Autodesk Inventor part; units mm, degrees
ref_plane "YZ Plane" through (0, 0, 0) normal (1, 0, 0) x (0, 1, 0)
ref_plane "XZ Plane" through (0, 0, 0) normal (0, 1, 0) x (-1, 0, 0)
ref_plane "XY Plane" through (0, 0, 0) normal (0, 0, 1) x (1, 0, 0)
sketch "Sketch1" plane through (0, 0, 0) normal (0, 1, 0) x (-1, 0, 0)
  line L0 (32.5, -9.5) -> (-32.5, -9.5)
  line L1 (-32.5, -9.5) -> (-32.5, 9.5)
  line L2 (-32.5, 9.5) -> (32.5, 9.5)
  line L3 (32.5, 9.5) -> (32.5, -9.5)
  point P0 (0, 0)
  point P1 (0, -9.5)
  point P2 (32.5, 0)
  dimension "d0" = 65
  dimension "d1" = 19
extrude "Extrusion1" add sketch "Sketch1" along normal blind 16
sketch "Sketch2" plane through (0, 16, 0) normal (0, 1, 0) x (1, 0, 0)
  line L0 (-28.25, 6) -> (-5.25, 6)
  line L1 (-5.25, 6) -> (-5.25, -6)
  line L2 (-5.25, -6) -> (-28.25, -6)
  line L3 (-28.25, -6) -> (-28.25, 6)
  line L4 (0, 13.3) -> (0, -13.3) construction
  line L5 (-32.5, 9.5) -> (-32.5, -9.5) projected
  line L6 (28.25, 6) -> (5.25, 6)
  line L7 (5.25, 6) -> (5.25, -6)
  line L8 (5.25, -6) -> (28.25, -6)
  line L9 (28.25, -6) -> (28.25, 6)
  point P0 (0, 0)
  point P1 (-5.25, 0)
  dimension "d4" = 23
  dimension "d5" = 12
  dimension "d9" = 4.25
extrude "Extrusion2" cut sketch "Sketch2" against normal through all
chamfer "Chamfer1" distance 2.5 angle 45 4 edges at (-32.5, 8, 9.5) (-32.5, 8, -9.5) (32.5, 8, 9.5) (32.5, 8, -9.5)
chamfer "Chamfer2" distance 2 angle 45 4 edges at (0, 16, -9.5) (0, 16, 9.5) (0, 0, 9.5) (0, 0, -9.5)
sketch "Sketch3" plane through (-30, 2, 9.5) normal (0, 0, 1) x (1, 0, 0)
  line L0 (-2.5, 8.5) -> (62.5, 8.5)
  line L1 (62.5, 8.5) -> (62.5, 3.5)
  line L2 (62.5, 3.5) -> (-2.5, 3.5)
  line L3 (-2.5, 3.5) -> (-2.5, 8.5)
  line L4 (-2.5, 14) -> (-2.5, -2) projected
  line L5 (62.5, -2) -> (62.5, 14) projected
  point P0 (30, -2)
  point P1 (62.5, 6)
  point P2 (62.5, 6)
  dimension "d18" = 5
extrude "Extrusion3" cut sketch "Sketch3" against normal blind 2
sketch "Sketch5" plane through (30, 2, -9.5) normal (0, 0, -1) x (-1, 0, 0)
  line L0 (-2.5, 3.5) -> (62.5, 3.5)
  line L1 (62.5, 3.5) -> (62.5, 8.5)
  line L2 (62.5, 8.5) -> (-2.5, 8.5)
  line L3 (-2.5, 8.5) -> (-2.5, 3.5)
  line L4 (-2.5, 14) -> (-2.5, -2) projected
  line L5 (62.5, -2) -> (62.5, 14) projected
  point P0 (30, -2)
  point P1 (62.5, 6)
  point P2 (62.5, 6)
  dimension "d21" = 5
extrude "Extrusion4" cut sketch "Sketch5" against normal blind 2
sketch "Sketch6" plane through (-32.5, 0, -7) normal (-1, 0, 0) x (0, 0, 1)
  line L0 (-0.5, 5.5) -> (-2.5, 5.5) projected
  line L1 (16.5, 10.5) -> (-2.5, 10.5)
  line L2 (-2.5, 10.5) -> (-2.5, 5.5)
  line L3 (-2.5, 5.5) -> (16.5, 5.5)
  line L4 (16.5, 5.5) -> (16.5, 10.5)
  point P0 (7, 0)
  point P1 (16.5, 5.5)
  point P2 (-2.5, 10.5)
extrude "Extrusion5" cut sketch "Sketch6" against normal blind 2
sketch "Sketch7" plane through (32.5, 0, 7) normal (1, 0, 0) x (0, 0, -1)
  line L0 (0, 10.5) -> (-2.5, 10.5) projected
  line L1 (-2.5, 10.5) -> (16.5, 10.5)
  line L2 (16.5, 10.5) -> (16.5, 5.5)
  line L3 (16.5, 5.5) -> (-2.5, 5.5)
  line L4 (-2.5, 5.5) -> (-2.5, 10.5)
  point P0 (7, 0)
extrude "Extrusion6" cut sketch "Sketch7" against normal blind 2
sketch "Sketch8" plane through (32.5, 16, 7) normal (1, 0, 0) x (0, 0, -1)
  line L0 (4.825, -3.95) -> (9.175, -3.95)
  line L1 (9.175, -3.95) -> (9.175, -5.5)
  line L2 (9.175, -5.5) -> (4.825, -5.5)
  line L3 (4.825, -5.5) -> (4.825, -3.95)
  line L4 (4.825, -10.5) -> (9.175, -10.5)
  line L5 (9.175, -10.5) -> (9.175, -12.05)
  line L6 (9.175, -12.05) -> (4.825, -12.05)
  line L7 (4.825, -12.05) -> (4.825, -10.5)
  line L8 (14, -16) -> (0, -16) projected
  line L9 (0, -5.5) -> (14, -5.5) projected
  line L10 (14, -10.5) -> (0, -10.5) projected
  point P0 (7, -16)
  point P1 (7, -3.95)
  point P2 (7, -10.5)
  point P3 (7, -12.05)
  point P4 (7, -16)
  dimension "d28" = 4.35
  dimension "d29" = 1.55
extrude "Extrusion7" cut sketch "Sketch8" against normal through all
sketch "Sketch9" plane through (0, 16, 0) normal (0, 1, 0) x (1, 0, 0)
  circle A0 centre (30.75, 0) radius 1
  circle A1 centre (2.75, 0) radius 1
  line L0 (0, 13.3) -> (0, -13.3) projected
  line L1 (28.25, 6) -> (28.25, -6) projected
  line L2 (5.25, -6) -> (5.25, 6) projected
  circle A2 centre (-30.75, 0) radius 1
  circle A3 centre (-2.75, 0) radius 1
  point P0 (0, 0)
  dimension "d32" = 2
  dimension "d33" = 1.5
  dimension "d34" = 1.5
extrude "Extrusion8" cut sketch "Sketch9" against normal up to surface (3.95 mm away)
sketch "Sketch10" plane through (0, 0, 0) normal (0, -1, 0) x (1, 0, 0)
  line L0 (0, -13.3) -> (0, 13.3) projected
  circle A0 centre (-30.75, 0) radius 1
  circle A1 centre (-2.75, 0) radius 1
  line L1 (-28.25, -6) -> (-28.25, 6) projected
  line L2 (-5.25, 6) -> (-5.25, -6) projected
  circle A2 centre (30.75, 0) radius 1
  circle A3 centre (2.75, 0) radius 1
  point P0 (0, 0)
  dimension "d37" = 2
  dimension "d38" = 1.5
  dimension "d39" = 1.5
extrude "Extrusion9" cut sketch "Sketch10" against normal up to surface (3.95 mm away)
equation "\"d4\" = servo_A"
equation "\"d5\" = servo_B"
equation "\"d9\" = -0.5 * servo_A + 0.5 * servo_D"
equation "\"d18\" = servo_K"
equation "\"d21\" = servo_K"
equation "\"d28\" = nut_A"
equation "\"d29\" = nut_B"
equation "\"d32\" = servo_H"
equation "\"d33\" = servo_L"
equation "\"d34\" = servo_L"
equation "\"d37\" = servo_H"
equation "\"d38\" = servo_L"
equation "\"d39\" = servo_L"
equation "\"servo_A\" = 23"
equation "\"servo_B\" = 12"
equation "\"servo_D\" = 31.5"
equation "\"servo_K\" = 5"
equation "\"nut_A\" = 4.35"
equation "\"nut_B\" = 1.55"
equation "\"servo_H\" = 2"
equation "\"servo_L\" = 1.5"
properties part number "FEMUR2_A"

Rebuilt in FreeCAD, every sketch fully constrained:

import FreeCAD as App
import Part
import Sketcher

V = App.Vector


def edges_at(feature, points):
    """Names of the edges that pass closest to the given points."""
    edges = feature.Shape.Edges
    near = lambda p: min(range(len(edges)), key=lambda i: edges[i].distToShape(Part.Vertex(*p))[0])
    return sorted({f"Edge{near(p) + 1}" for p in points})

doc = App.newDocument("Part")
body = doc.addObject("PartDesign::Body", "Body")

# Sketch on XZ plane
sketch1 = body.newObject("Sketcher::SketchObject", "Sketch")
sketch1.AttachmentSupport = (doc.getObject("XZ_Plane"), [""])
sketch1.MapMode = "FlatFace"
sketch1.addGeometry([
    Part.LineSegment(V(32, -10, 0), V(-32, -10, 0)),
    Part.LineSegment(V(-32, -10, 0), V(-32, 10, 0)),
    Part.LineSegment(V(-32, 10, 0), V(32, 10, 0)),
    Part.LineSegment(V(32, 10, 0), V(32, -10, 0)),
], False)
sketch1.addConstraint([
    Sketcher.Constraint("Coincident", 0, 2, 1, 1),
    Sketcher.Constraint("Coincident", 1, 2, 2, 1),
    Sketcher.Constraint("Coincident", 2, 2, 3, 1),
    Sketcher.Constraint("Coincident", 3, 2, 0, 1),
    Sketcher.Constraint("Horizontal", 0),
    Sketcher.Constraint("Vertical", 1),
    Sketcher.Constraint("Horizontal", 2),
    Sketcher.Constraint("Vertical", 3),
    Sketcher.Constraint("Symmetric", 0, 2, 2, 2, -1, 1),
    Sketcher.Constraint("DistanceX", 0, 2, 0, 1, 65.0),
    Sketcher.Constraint("DistanceY", 1, 1, 1, 2, 19.0),
])
pad1 = body.newObject("PartDesign::Pad", "Pad")
pad1.Profile = sketch1
pad1.Length = 16
pad1.Reversed = True

# Sketch on XZ plane
sketch2 = body.newObject("Sketcher::SketchObject", "Sketch001")
sketch2.AttachmentSupport = (doc.getObject("XZ_Plane"), [""])
sketch2.MapMode = "FlatFace"
sketch2.AttachmentOffset = App.Placement(V(0, 0, -16), App.Rotation())
sketch2.addGeometry([
    Part.LineSegment(V(-5, -6, 0), V(-28, -6, 0)),  # 0
    Part.LineSegment(V(-28, -6, 0), V(-28, 6, 0)),  # 1
    Part.LineSegment(V(-28, 6, 0), V(-5, 6, 0)),  # 2
    Part.LineSegment(V(-5, 6, 0), V(-5, -6, 0)),  # 3
    Part.LineSegment(V(28, 6, 0), V(28, -6, 0)),  # 4
    Part.LineSegment(V(28, -6, 0), V(5, -6, 0)),  # 5
    Part.LineSegment(V(5, -6, 0), V(5, 6, 0)),  # 6
    Part.LineSegment(V(5, 6, 0), V(28, 6, 0)),  # 7
], False)
sketch2.addConstraint([
    Sketcher.Constraint("Coincident", 0, 2, 1, 1),
    Sketcher.Constraint("Coincident", 1, 2, 2, 1),
    Sketcher.Constraint("Coincident", 2, 2, 3, 1),
    Sketcher.Constraint("Coincident", 3, 2, 0, 1),
    Sketcher.Constraint("Coincident", 4, 2, 5, 1),
    Sketcher.Constraint("Coincident", 5, 2, 6, 1),
    Sketcher.Constraint("Coincident", 6, 2, 7, 1),
    Sketcher.Constraint("Coincident", 7, 2, 4, 1),
    Sketcher.Constraint("Horizontal", 0),
    Sketcher.Constraint("Vertical", 1),
    Sketcher.Constraint("Horizontal", 2),
    Sketcher.Constraint("Vertical", 3),
    Sketcher.Constraint("Vertical", 4),
    Sketcher.Constraint("Horizontal", 5),
    Sketcher.Constraint("Vertical", 6),
    Sketcher.Constraint("Horizontal", 7),
    Sketcher.Constraint("Symmetric", 1, 2, 4, 2, -1, 1),
    Sketcher.Constraint("Symmetric", 3, 2, 6, 2, -1, 1),
    Sketcher.Constraint("Horizontal", 3, 2, 4, 2),
    Sketcher.Constraint("DistanceX", 0, 2, 0, 1, 23.0),
    Sketcher.Constraint("DistanceY", 1, 1, 1, 2, 12.0),
    Sketcher.Constraint("DistanceX", 3, 2, 4, 2, 33.5),
])
pocket1 = body.newObject("PartDesign::Pocket", "Pocket")
pocket1.Profile = sketch2
pocket1.Type = "ThroughAll"
pocket1.Reversed = True
doc.recompute()

chamfer = body.newObject("PartDesign::Chamfer", "Chamfer")
chamfer.Base = (pocket1, edges_at(pocket1, [
    (-32.5, 8, 9.5),
    (-32.5, 8, -9.5),
    (32.5, 8, 9.5),
    (32.5, 8, -9.5),
]))
chamfer.Size = 2.5
doc.recompute()

chamfer2 = body.newObject("PartDesign::Chamfer", "Chamfer001")
chamfer2.Base = (chamfer, edges_at(chamfer, [
    (0, 16, -9.5),
    (0, 16, 9.5),
    (0, 0, 9.5),
    (0, 0, -9.5),
]))
chamfer2.Size = 2

# Sketch on XY plane
sketch3 = body.newObject("Sketcher::SketchObject", "Sketch002")
sketch3.AttachmentSupport = (doc.getObject("XY_Plane"), [""])
sketch3.MapMode = "FlatFace"
sketch3.AttachmentOffset = App.Placement(V(0, 0, 9.5), App.Rotation())
sketch3.addGeometry([
    Part.LineSegment(V(32, 10, 0), V(-32, 10, 0)),
    Part.LineSegment(V(-32, 10, 0), V(-32, 6, 0)),
    Part.LineSegment(V(-32, 6, 0), V(32, 6, 0)),
    Part.LineSegment(V(32, 6, 0), V(32, 10, 0)),
], False)
sketch3.addConstraint([
    Sketcher.Constraint("Coincident", 0, 2, 1, 1),
    Sketcher.Constraint("Coincident", 1, 2, 2, 1),
    Sketcher.Constraint("Coincident", 2, 2, 3, 1),
    Sketcher.Constraint("Coincident", 3, 2, 0, 1),
    Sketcher.Constraint("Horizontal", 0),
    Sketcher.Constraint("Vertical", 1),
    Sketcher.Constraint("Horizontal", 2),
    Sketcher.Constraint("Vertical", 3),
    Sketcher.Constraint("DistanceY", 1, 2, 1, 1, 5.0),
    Sketcher.Constraint("DistanceX", 0, 2, 0, 1, 65.0),
    Sketcher.Constraint("DistanceX", 0, 2, -1, 1, 32.5),
    Sketcher.Constraint("DistanceY", -1, 1, 0, 2, 10.5),
])
pocket2 = body.newObject("PartDesign::Pocket", "Pocket001")
pocket2.Profile = sketch3
pocket2.Length = 2

# Sketch on XY plane
sketch4 = body.newObject("Sketcher::SketchObject", "Sketch003")
sketch4.AttachmentSupport = (doc.getObject("XY_Plane"), [""])
sketch4.MapMode = "FlatFace"
sketch4.AttachmentOffset = App.Placement(V(0, 0, -9.5), App.Rotation())
sketch4.addGeometry([
    Part.LineSegment(V(32, 10, 0), V(32, 6, 0)),
    Part.LineSegment(V(32, 6, 0), V(-32, 6, 0)),
    Part.LineSegment(V(-32, 6, 0), V(-32, 10, 0)),
    Part.LineSegment(V(-32, 10, 0), V(32, 10, 0)),
], False)
sketch4.addConstraint([
    Sketcher.Constraint("Coincident", 0, 2, 1, 1),
    Sketcher.Constraint("Coincident", 1, 2, 2, 1),
    Sketcher.Constraint("Coincident", 2, 2, 3, 1),
    Sketcher.Constraint("Coincident", 3, 2, 0, 1),
    Sketcher.Constraint("Vertical", 0),
    Sketcher.Constraint("Horizontal", 1),
    Sketcher.Constraint("Vertical", 2),
    Sketcher.Constraint("Horizontal", 3),
    Sketcher.Constraint("DistanceY", 0, 2, 0, 1, 5.0),
    Sketcher.Constraint("DistanceX", 1, 2, 1, 1, 65.0),
    Sketcher.Constraint("DistanceX", -1, 1, 0, 2, 32.5),
    Sketcher.Constraint("DistanceY", -1, 1, 0, 2, 5.5),
])
pocket3 = body.newObject("PartDesign::Pocket", "Pocket002")
pocket3.Profile = sketch4
pocket3.Length = 2
pocket3.Reversed = True

# Sketch on YZ plane
sketch5 = body.newObject("Sketcher::SketchObject", "Sketch004")
sketch5.AttachmentSupport = (doc.getObject("YZ_Plane"), [""])
sketch5.MapMode = "FlatFace"
sketch5.AttachmentOffset = App.Placement(V(0, 0, -32.5), App.Rotation())
sketch5.addGeometry([
    Part.LineSegment(V(6, -10, 0), V(6, 10, 0)),
    Part.LineSegment(V(6, 10, 0), V(10, 10, 0)),
    Part.LineSegment(V(10, 10, 0), V(10, -10, 0)),
    Part.LineSegment(V(10, -10, 0), V(6, -10, 0)),
], False)
sketch5.addConstraint([
    Sketcher.Constraint("Coincident", 0, 2, 1, 1),
    Sketcher.Constraint("Coincident", 1, 2, 2, 1),
    Sketcher.Constraint("Coincident", 2, 2, 3, 1),
    Sketcher.Constraint("Coincident", 3, 2, 0, 1),
    Sketcher.Constraint("Vertical", 0),
    Sketcher.Constraint("Horizontal", 1),
    Sketcher.Constraint("Vertical", 2),
    Sketcher.Constraint("Horizontal", 3),
    Sketcher.Constraint("DistanceX", 1, 1, 1, 2, 5.0),
    Sketcher.Constraint("DistanceY", 0, 1, 0, 2, 19.0),
    Sketcher.Constraint("DistanceX", -1, 1, 0, 2, 5.5),
    Sketcher.Constraint("DistanceY", -1, 1, 0, 2, 9.5),
])
pocket4 = body.newObject("PartDesign::Pocket", "Pocket003")
pocket4.Profile = sketch5
pocket4.Length = 2
pocket4.Reversed = True

# Sketch on YZ plane
sketch6 = body.newObject("Sketcher::SketchObject", "Sketch005")
sketch6.AttachmentSupport = (doc.getObject("YZ_Plane"), [""])
sketch6.MapMode = "FlatFace"
sketch6.AttachmentOffset = App.Placement(V(0, 0, 32.5), App.Rotation())
sketch6.addGeometry([
    Part.LineSegment(V(10, -10, 0), V(10, 10, 0)),
    Part.LineSegment(V(10, 10, 0), V(6, 10, 0)),
    Part.LineSegment(V(6, 10, 0), V(6, -10, 0)),
    Part.LineSegment(V(6, -10, 0), V(10, -10, 0)),
], False)
sketch6.addConstraint([
    Sketcher.Constraint("Coincident", 0, 2, 1, 1),
    Sketcher.Constraint("Coincident", 1, 2, 2, 1),
    Sketcher.Constraint("Coincident", 2, 2, 3, 1),
    Sketcher.Constraint("Coincident", 3, 2, 0, 1),
    Sketcher.Constraint("Vertical", 0),
    Sketcher.Constraint("Horizontal", 1),
    Sketcher.Constraint("Vertical", 2),
    Sketcher.Constraint("Horizontal", 3),
    Sketcher.Constraint("DistanceX", 1, 2, 1, 1, 5.0),
    Sketcher.Constraint("DistanceY", 0, 1, 0, 2, 19.0),
    Sketcher.Constraint("DistanceX", -1, 1, 0, 2, 10.5),
    Sketcher.Constraint("DistanceY", -1, 1, 0, 2, 9.5),
])
pocket5 = body.newObject("PartDesign::Pocket", "Pocket004")
pocket5.Profile = sketch6
pocket5.Length = 2

# Sketch on YZ plane
sketch7 = body.newObject("Sketcher::SketchObject", "Sketch006")
sketch7.AttachmentSupport = (doc.getObject("YZ_Plane"), [""])
sketch7.MapMode = "FlatFace"
sketch7.AttachmentOffset = App.Placement(V(0, 0, 32.5), App.Rotation())
sketch7.addGeometry([
    Part.LineSegment(V(12.1, -2.2, 0), V(12.1, 2.2, 0)),  # 0
    Part.LineSegment(V(12.1, 2.2, 0), V(10.5, 2.2, 0)),  # 1
    Part.LineSegment(V(10.5, 2.2, 0), V(10.5, -2.2, 0)),  # 2
    Part.LineSegment(V(10.5, -2.2, 0), V(12.1, -2.2, 0)),  # 3
    Part.LineSegment(V(5.5, -2.2, 0), V(5.5, 2.2, 0)),  # 4
    Part.LineSegment(V(5.5, 2.2, 0), V(4, 2.2, 0)),  # 5
    Part.LineSegment(V(4, 2.2, 0), V(4, -2.2, 0)),  # 6
    Part.LineSegment(V(4, -2.2, 0), V(5.5, -2.2, 0)),  # 7
], False)
sketch7.addConstraint([
    Sketcher.Constraint("Coincident", 0, 2, 1, 1),
    Sketcher.Constraint("Coincident", 1, 2, 2, 1),
    Sketcher.Constraint("Coincident", 2, 2, 3, 1),
    Sketcher.Constraint("Coincident", 3, 2, 0, 1),
    Sketcher.Constraint("Coincident", 4, 2, 5, 1),
    Sketcher.Constraint("Coincident", 5, 2, 6, 1),
    Sketcher.Constraint("Coincident", 6, 2, 7, 1),
    Sketcher.Constraint("Coincident", 7, 2, 4, 1),
    Sketcher.Constraint("Vertical", 0),
    Sketcher.Constraint("Horizontal", 1),
    Sketcher.Constraint("Vertical", 2),
    Sketcher.Constraint("Horizontal", 3),
    Sketcher.Constraint("Vertical", 4),
    Sketcher.Constraint("Horizontal", 5),
    Sketcher.Constraint("Vertical", 6),
    Sketcher.Constraint("Horizontal", 7),
    Sketcher.Constraint("Horizontal", 1, 2, 4, 2),
    Sketcher.Constraint("Horizontal", 3, 2, 6, 2),
    Sketcher.Constraint("Equal", 3, 5),
    Sketcher.Constraint("DistanceX", 1, 2, 1, 1, 1.55),
    Sketcher.Constraint("DistanceY", 0, 1, 0, 2, 4.35),
    Sketcher.Constraint("DistanceX", 4, 2, 1, 2, 5.0),
    Sketcher.Constraint("DistanceX", -1, 1, 1, 2, 10.5),
    Sketcher.Constraint("DistanceY", -1, 1, 0, 2, 2.175),
])
pocket6 = body.newObject("PartDesign::Pocket", "Pocket005")
pocket6.Profile = sketch7
pocket6.Type = "ThroughAll"

# Sketch on XZ plane
sketch8 = body.newObject("Sketcher::SketchObject", "Sketch007")
sketch8.AttachmentSupport = (doc.getObject("XZ_Plane"), [""])
sketch8.MapMode = "FlatFace"
sketch8.AttachmentOffset = App.Placement(V(0, 0, -16), App.Rotation())
sketch8.addGeometry([
    Part.Circle(V(30.8, 0, 0), V(0, 0, 1), 1),
    Part.Circle(V(2.8, 0, 0), V(0, 0, 1), 1),
    Part.Circle(V(-30.8, 0, 0), V(0, 0, 1), 1),
    Part.Circle(V(-2.8, 0, 0), V(0, 0, 1), 1),
], False)
sketch8.addConstraint([
    Sketcher.Constraint("Equal", 0, 1),
    Sketcher.Constraint("Equal", 1, 2),
    Sketcher.Constraint("Equal", 2, 3),
    Sketcher.Constraint("Symmetric", 0, 3, 2, 3, -1, 1),
    Sketcher.Constraint("Symmetric", 1, 3, 3, 3, -1, 1),
    Sketcher.Constraint("PointOnObject", 0, 3, -1),
    Sketcher.Constraint("PointOnObject", 1, 3, -1),
    Sketcher.Constraint("Diameter", 0, 2.0),
    Sketcher.Constraint("DistanceX", 1, 3, 0, 3, 28.0),
    Sketcher.Constraint("DistanceX", 2, 3, 1, 3, 33.5),
])
pocket7 = body.newObject("PartDesign::Pocket", "Pocket006")
pocket7.Profile = sketch8
pocket7.Length = 3.95
pocket7.Reversed = True

# Sketch on XZ plane
sketch9 = body.newObject("Sketcher::SketchObject", "Sketch008")
sketch9.AttachmentSupport = (doc.getObject("XZ_Plane"), [""])
sketch9.MapMode = "FlatFace"
sketch9.addGeometry([
    Part.Circle(V(-30.8, 0, 0), V(0, 0, 1), 1),
    Part.Circle(V(-2.8, 0, 0), V(0, 0, 1), 1),
    Part.Circle(V(30.8, 0, 0), V(0, 0, 1), 1),
    Part.Circle(V(2.8, 0, 0), V(0, 0, 1), 1),
], False)
sketch9.addConstraint([
    Sketcher.Constraint("Equal", 0, 1),
    Sketcher.Constraint("Equal", 1, 2),
    Sketcher.Constraint("Equal", 2, 3),
    Sketcher.Constraint("Symmetric", 0, 3, 2, 3, -1, 1),
    Sketcher.Constraint("Symmetric", 1, 3, 3, 3, -1, 1),
    Sketcher.Constraint("PointOnObject", 0, 3, -1),
    Sketcher.Constraint("PointOnObject", 1, 3, -1),
    Sketcher.Constraint("Diameter", 0, 2.0),
    Sketcher.Constraint("DistanceX", 0, 3, 1, 3, 28.0),
    Sketcher.Constraint("DistanceX", 1, 3, 2, 3, 33.5),
])
pocket8 = body.newObject("PartDesign::Pocket", "Pocket007")
pocket8.Profile = sketch9
pocket8.Length = 3.95

doc.recompute()
